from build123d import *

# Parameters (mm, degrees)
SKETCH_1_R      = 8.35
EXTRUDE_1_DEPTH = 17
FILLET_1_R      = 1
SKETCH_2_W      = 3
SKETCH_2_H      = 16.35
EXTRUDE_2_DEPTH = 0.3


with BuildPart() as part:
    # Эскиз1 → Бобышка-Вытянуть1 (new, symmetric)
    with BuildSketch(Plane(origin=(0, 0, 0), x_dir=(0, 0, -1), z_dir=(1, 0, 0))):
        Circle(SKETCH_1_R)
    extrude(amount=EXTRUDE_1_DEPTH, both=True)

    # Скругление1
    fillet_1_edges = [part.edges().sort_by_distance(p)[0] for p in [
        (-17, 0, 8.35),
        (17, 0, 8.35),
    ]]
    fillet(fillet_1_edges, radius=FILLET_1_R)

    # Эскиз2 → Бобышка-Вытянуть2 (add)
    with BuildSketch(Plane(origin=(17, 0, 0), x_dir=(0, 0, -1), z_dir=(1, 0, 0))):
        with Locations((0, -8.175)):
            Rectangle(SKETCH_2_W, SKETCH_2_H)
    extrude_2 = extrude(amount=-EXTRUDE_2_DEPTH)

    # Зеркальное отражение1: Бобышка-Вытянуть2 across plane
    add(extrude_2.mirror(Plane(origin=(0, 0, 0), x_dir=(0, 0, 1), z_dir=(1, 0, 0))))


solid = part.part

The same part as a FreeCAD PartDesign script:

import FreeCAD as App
import Part
import Sketcher
from FreeCAD import Vector
Q = App.Units.Quantity


def edges_at(feature, points):
    """Names of the edges that pass closest to the given points."""
    edges = feature.Shape.Edges
    near = lambda p: min(range(len(edges)), key=lambda i: edges[i].distToShape(Part.Vertex(*p))[0])
    return sorted({f"Edge{near(p) + 1}" for p in points})

doc = App.newDocument("Part")
body = doc.addObject("PartDesign::Body", "Body")

# Sketch on YZ plane
sketch1 = body.newObject("Sketcher::SketchObject", "Sketch")
sketch1.AttachmentSupport = (doc.getObject("YZ_Plane"), [""])
sketch1.MapMode = "FlatFace"
sketch1.addGeometry(Part.Circle(Vector(0, 0, 0), Vector(0, 0, 1), 8), False)
sketch1.addConstraint([
    Sketcher.Constraint("Coincident", 0, 3, -1, 1),
    Sketcher.Constraint("Diameter", 0, Q("16.7 mm")),
])
pad1 = body.newObject("PartDesign::Pad", "Pad")
pad1.Profile = sketch1
pad1.Length = 34
pad1.Midplane = True
doc.recompute()

fillet = body.newObject("PartDesign::Fillet", "Fillet")
fillet.Base = (pad1, edges_at(pad1, [(-17, 0, 8.35), (17, 0, 8.35)]))
fillet.Radius = 1

# Sketch on YZ plane
sketch2 = body.newObject("Sketcher::SketchObject", "Sketch001")
sketch2.AttachmentSupport = (doc.getObject("YZ_Plane"), [""])
sketch2.MapMode = "FlatFace"
sketch2.AttachmentOffset = App.Placement(Vector(0, 0, 17), App.Rotation())
sketch2.addGeometry([
    Part.LineSegment(Vector(0, 1.5, 0), Vector(-16.4, 1.5, 0)),
    Part.LineSegment(Vector(-16.4, 1.5, 0), Vector(-16.4, -1.5, 0)),
    Part.LineSegment(Vector(-16.4, -1.5, 0), Vector(0, -1.5, 0)),
    Part.LineSegment(Vector(0, -1.5, 0), Vector(0, 1.5, 0)),
], False)
sketch2.addConstraint([
    Sketcher.Constraint("Coincident", 0, 2, 1, 1),
    Sketcher.Constraint("Coincident", 1, 2, 2, 1),
    Sketcher.Constraint("Coincident", 2, 2, 3, 1),
    Sketcher.Constraint("Coincident", 3, 2, 0, 1),
    Sketcher.Constraint("Horizontal", 0),
    Sketcher.Constraint("Vertical", 1),
    Sketcher.Constraint("Horizontal", 2),
    Sketcher.Constraint("Vertical", 3),
    Sketcher.Constraint("Symmetric", 2, 2, 3, 2, -1, 1),
    Sketcher.Constraint("DistanceY", 1, 2, 1, 1, Q("3 mm")),
    Sketcher.Constraint("DistanceX", 0, 2, 0, 1, Q("16.35 mm")),
])
pad2 = body.newObject("PartDesign::Pad", "Pad001")
pad2.Profile = sketch2
pad2.Length = 0.3
pad2.Reversed = True
doc.recompute()

mirrored = body.newObject("PartDesign::Mirrored", "Mirrored")
mirrored.Originals = [pad2]
mirrored.MirrorPlane = (doc.getObject("YZ_Plane"), [""])
body.Tip = mirrored

doc.recompute()
